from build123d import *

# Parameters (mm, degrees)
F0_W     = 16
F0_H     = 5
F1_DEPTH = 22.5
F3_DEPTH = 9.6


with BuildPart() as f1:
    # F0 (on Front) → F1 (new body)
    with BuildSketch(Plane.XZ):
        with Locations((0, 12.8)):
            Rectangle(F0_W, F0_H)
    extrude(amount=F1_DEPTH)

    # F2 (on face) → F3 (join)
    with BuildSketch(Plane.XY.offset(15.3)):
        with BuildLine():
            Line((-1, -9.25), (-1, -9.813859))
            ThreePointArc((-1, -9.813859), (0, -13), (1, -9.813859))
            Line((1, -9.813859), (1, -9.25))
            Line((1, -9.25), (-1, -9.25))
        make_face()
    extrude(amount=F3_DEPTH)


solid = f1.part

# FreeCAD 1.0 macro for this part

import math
import FreeCAD as App
import Part
import Sketcher

doc = App.newDocument("Part")
body = doc.addObject("PartDesign::Body", "Body")

sketch1 = body.newObject("Sketcher::SketchObject", "Sketch")
sketch1.AttachmentSupport = (doc.getObject("XZ_Plane"), [""])
sketch1.MapMode = "FlatFace"
sketch1.addGeometry([
    Part.LineSegment(App.Vector(-8, 15, 0), App.Vector(-8, 10, 0)),
    Part.LineSegment(App.Vector(-8, 10, 0), App.Vector(8, 10, 0)),
    Part.LineSegment(App.Vector(8, 10, 0), App.Vector(8, 15, 0)),
    Part.LineSegment(App.Vector(8, 15, 0), App.Vector(-8, 15, 0)),
], False)
sketch1.addConstraint([
    Sketcher.Constraint("Coincident", 0, 2, 1, 1),
    Sketcher.Constraint("Coincident", 1, 2, 2, 1),
    Sketcher.Constraint("Coincident", 2, 2, 3, 1),
    Sketcher.Constraint("Coincident", 3, 2, 0, 1),
    Sketcher.Constraint("Vertical", 0),
    Sketcher.Constraint("Horizontal", 1),
    Sketcher.Constraint("Vertical", 2),
    Sketcher.Constraint("Horizontal", 3),
    Sketcher.Constraint("DistanceX", 1, 1, 1, 2, 16.0),
    Sketcher.Constraint("DistanceY", 0, 2, 0, 1, 5.0),
    Sketcher.Constraint("DistanceX", 0, 2, -1, 1, 8.0),
    Sketcher.Constraint("DistanceY", -1, 1, 0, 2, 10.3),
])
pad1 = body.newObject("PartDesign::Pad", "Pad")
pad1.Profile = sketch1
pad1.Length = 22.5

sketch2 = body.newObject("Sketcher::SketchObject", "Sketch001")
sketch2.AttachmentSupport = (doc.getObject("XY_Plane"), [""])
sketch2.MapMode = "FlatFace"
sketch2.AttachmentOffset = App.Placement(App.Vector(0, 0, 15.3), App.Rotation())
sketch2.addGeometry([
    Part.LineSegment(App.Vector(-1, -9.2, 0), App.Vector(-1, -9.8, 0)),
    Part.ArcOfCircle(Part.Circle(App.Vector(0, -11.2, 0), App.Vector(0, 0, 1), 1.8), math.radians(125), math.radians(415)),
    Part.LineSegment(App.Vector(1, -9.8, 0), App.Vector(1, -9.2, 0)),
    Part.LineSegment(App.Vector(1, -9.2, 0), App.Vector(-1, -9.2, 0)),
], False)
sketch2.addConstraint([
    Sketcher.Constraint("Coincident", 0, 2, 1, 1),
    Sketcher.Constraint("Coincident", 1, 2, 2, 1),
    Sketcher.Constraint("Coincident", 2, 2, 3, 1),
    Sketcher.Constraint("Coincident", 3, 2, 0, 1),
    Sketcher.Constraint("Vertical", 0),
    Sketcher.Constraint("Vertical", 2),
    Sketcher.Constraint("Horizontal", 3),
    Sketcher.Constraint("Symmetric", 0, 2, 1, 2, -2),
    Sketcher.Constraint("DistanceX", 3, 2, 3, 1, 2.0),
    Sketcher.Constraint("Radius", 1, 1.75),
    Sketcher.Constraint("DistanceY", 1, 3, 2, 2, 2.0),
    Sketcher.Constraint("DistanceY", 1, 3, -1, 1, 11.25),
])
pad2 = body.newObject("PartDesign::Pad", "Pad001")
pad2.Profile = sketch2
pad2.Length = 9.6

doc.recompute()
